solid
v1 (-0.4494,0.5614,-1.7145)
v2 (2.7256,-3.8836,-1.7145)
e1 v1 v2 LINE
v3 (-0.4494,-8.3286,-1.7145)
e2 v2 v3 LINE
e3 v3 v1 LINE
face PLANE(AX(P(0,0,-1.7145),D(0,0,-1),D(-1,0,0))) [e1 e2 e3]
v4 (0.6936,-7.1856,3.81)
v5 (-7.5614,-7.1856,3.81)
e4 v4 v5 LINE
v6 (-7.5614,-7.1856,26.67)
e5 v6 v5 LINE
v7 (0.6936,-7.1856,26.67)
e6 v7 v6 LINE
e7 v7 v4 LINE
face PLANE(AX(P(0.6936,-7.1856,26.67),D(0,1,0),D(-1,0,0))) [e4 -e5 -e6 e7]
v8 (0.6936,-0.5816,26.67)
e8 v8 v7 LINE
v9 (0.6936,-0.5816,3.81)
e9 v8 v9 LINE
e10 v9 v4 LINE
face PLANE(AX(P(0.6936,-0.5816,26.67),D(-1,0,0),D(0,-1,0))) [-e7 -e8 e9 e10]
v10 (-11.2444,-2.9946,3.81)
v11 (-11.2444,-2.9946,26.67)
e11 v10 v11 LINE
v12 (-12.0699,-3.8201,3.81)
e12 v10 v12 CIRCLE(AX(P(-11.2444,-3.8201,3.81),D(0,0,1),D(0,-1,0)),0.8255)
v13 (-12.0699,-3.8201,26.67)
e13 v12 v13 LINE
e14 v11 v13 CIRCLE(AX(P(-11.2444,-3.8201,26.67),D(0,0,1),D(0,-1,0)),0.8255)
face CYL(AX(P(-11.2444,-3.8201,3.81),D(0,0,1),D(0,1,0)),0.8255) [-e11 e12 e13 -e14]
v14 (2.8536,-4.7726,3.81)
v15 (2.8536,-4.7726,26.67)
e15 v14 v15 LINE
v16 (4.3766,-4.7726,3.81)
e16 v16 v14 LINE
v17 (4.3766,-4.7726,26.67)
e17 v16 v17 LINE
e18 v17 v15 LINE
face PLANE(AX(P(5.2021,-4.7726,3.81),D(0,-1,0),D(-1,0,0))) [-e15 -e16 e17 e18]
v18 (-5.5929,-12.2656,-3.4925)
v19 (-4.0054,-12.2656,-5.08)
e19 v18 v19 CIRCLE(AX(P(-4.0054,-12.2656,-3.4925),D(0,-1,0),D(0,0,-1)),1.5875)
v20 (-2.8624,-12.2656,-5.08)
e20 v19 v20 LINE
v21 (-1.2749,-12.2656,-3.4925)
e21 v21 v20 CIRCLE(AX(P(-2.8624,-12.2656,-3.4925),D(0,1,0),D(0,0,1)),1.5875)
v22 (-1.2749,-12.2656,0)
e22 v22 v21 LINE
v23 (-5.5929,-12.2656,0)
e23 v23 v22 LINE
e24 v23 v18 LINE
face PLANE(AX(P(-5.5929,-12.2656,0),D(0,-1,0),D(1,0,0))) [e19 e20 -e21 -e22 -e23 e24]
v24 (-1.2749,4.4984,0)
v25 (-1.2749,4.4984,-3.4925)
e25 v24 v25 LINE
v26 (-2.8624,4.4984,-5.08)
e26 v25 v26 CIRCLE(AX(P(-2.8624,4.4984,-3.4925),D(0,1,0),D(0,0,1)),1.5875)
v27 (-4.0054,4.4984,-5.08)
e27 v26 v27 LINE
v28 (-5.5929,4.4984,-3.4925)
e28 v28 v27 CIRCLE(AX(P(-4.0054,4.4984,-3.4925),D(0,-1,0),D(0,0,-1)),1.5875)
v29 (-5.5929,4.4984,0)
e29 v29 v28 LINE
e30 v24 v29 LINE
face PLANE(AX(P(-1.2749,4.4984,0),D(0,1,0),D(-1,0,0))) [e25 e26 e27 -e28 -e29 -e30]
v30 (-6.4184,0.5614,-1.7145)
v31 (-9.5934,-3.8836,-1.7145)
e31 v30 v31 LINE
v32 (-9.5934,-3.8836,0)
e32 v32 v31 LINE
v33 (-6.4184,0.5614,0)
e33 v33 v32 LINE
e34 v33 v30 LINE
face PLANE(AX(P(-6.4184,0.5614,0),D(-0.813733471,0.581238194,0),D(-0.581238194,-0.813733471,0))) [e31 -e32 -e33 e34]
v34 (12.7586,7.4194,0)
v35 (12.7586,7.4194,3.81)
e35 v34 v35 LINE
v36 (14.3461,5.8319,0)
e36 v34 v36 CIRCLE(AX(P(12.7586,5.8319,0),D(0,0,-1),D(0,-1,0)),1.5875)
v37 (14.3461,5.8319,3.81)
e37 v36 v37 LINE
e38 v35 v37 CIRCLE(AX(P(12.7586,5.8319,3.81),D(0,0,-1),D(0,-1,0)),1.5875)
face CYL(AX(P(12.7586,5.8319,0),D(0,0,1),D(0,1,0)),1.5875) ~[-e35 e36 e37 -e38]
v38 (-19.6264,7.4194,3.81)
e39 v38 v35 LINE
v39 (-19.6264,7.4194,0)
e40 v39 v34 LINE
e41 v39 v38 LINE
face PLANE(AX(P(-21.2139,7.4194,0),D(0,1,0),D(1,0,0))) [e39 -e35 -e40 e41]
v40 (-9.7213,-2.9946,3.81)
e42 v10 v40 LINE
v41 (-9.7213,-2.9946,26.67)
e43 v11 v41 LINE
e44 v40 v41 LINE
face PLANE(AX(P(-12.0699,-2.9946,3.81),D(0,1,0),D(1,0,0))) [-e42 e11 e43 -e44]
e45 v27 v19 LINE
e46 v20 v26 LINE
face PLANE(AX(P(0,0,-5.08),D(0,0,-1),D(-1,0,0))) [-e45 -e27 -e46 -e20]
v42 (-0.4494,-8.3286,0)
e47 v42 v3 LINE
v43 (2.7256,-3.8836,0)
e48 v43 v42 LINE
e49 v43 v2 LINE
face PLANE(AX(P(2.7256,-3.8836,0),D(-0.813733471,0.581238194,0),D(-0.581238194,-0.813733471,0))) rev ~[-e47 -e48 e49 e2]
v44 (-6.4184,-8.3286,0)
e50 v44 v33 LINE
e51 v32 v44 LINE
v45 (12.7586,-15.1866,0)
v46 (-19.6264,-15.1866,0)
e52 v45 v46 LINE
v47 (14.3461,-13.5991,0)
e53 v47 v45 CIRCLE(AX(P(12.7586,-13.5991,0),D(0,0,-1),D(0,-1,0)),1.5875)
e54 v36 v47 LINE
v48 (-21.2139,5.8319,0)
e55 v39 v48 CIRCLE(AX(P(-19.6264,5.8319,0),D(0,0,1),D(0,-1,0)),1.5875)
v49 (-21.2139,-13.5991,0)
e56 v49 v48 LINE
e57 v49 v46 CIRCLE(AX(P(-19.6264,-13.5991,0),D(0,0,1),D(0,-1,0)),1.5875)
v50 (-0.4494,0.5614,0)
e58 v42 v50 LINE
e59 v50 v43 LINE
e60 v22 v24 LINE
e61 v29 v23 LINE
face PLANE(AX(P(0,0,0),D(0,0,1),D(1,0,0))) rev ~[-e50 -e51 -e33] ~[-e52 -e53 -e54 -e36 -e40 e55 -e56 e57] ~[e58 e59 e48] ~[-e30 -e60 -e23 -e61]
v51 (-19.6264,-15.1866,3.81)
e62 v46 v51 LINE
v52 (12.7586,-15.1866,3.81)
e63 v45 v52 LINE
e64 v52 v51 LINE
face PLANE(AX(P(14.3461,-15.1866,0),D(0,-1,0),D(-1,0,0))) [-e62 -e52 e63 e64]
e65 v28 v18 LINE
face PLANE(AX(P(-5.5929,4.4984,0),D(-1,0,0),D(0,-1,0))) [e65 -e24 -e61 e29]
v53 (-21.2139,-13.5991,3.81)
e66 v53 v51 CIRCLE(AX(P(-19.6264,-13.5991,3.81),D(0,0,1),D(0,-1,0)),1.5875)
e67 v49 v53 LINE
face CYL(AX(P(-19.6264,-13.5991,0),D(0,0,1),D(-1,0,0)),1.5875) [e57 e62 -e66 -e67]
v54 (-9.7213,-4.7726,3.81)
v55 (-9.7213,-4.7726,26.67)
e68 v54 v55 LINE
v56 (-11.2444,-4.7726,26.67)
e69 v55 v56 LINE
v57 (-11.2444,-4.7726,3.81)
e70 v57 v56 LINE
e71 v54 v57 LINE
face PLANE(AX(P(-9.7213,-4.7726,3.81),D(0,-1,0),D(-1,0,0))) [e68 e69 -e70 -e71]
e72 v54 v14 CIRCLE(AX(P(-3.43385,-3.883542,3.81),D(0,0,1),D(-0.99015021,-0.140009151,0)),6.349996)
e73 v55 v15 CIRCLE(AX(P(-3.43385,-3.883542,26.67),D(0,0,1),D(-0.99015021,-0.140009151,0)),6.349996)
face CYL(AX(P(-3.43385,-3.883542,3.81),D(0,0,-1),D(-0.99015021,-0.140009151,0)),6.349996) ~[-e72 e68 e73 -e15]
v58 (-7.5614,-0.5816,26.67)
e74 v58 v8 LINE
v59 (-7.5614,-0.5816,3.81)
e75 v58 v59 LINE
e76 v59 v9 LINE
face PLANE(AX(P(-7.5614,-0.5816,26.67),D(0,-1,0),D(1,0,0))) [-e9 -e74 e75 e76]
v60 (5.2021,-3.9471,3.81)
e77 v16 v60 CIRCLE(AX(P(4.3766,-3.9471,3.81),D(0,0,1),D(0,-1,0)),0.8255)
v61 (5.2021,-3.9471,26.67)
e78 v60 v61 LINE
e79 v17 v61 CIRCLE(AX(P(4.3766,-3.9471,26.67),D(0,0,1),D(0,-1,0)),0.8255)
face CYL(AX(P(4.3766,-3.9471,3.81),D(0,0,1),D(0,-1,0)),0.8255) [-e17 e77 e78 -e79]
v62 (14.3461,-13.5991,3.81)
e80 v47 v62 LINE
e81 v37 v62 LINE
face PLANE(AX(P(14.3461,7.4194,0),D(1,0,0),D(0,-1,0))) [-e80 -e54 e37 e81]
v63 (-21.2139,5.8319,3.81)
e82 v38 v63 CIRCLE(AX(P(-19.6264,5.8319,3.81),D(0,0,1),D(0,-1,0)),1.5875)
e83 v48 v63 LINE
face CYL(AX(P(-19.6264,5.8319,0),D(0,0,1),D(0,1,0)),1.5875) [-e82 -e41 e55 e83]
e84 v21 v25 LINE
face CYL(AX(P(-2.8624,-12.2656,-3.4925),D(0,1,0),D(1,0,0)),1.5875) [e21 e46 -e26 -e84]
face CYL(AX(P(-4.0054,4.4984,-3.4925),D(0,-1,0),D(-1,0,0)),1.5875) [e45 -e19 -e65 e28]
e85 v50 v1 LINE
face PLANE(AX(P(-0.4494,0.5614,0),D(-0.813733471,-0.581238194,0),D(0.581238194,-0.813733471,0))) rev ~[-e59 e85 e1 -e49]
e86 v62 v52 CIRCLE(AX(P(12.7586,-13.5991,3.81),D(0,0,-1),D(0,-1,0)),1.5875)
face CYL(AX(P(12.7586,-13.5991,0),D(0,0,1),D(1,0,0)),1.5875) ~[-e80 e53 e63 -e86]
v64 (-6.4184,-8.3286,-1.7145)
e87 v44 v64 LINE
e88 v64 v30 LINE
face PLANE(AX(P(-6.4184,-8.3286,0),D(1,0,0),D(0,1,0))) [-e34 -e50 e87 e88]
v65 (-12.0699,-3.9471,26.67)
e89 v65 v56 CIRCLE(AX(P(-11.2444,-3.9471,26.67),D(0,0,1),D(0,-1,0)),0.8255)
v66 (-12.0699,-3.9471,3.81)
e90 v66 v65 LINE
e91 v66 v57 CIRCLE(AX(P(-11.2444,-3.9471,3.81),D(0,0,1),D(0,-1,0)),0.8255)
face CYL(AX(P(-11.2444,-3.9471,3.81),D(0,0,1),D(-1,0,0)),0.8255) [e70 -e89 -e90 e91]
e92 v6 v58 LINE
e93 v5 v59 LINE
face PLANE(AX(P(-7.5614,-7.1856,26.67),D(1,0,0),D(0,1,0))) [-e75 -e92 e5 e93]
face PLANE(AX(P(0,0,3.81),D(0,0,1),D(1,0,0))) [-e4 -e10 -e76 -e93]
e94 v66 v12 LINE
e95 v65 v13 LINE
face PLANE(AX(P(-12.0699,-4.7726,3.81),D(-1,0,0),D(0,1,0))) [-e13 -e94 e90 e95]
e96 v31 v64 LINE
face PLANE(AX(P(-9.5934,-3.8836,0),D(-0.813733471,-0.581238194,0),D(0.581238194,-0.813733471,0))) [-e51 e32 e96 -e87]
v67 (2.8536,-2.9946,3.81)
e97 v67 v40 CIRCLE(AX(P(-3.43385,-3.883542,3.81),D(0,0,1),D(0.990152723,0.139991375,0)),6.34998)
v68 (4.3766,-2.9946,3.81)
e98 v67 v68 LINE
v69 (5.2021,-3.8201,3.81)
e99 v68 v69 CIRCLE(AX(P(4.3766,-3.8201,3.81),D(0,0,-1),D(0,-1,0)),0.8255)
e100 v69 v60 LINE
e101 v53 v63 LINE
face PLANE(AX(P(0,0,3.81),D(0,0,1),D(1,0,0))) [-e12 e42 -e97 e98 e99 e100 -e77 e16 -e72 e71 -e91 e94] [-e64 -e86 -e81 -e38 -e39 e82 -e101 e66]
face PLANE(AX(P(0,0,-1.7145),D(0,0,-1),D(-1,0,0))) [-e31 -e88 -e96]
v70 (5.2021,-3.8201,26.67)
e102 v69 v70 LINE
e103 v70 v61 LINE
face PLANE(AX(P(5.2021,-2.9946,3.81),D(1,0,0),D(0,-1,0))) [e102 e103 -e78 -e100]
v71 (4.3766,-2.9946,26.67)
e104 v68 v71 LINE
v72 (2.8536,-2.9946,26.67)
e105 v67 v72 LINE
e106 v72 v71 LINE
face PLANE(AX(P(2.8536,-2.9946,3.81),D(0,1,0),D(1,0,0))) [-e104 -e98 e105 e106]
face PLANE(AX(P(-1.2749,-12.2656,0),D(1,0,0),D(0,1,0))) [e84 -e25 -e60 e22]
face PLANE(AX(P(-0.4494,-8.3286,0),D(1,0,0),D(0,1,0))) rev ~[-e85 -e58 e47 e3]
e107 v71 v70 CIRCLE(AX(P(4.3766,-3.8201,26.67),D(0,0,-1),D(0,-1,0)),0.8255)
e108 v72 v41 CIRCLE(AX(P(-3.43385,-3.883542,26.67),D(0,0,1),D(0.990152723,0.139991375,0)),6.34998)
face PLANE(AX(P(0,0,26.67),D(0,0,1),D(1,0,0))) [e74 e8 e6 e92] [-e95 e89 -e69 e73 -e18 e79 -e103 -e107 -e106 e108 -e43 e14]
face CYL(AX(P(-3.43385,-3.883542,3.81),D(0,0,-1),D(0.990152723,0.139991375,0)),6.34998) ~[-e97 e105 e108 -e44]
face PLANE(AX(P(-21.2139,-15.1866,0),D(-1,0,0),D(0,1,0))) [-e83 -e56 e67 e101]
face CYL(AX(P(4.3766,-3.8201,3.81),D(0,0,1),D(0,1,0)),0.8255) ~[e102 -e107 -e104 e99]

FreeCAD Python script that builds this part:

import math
import FreeCAD as App
import Part
import Sketcher

V = App.Vector
Q = App.Units.Quantity


def edges_at(feature, points):
    """Names of the edges that pass closest to the given points."""
    edges = feature.Shape.Edges
    near = lambda p: min(range(len(edges)), key=lambda i: edges[i].distToShape(Part.Vertex(*p))[0])
    return sorted({f"Edge{near(p) + 1}" for p in points})


def add_polygon(sketch, points):
    """Adds a closed chain of lines whose ends are joined by coincident constraints."""
    first, n = sketch.GeometryCount, len(points)
    for a, b in zip(points, points[1:] + points[:1]):
        sketch.addGeometry(Part.LineSegment(App.Vector(*a, 0), App.Vector(*b, 0)), False)
    for i in range(n):
        sketch.addConstraint(Sketcher.Constraint("Coincident", first + i, 2, first + (i + 1) % n, 1))

doc = App.newDocument("Part")
params = doc.addObject("Spreadsheet::Sheet", "Params")
for row, (alias, value) in enumerate([
    ("sketch1_width", "1.4 in"),
    ("sketch1_height", "0.89 in"),
    ("pad1_length", "0.15 in"),
    ("sketch2_height", "0.07 in"),
    ("sketch2_radius", "0.25 in"),
    ("pad2_length", "0.9 in"),
    ("sketch3_height", "0.26 in"),
    ("sketch3_width", "0.325 in"),
    ("pocket1_length", "0.9 in"),
    ("sketch4_width", "0.17 in"),
    ("sketch4_height", "0.66 in"),
    ("pad3_length", "0.2 in"),
    ("fillet_radius", "0.0625 in"),
    ("fillet2_radius", "0.0325 in"),
    ("sketch5_height", "0.35 in"),
    ("pad4_length", "0.0675 in"),
    ("fillet3_radius", "0.0625 in"),
], start=1):
    params.set(f"A{row}", alias)
    params.set(f"B{row}", "=" + value)
    params.setAlias(f"B{row}", alias)

body = doc.addObject("PartDesign::Body", "Body")

# Sketch on XY plane
sketch1 = doc.addObject("Sketcher::SketchObject", "Sketch")
body.addObject(sketch1)
sketch1.AttachmentSupport = (doc.XY_Plane, [""])
sketch1.MapMode = "FlatFace"
add_polygon(sketch1, [(14, 7), (-21, 7), (-21, -15), (14, -15)])  # lines 0-3
sketch1.addConstraint([
    Sketcher.Constraint("Horizontal", 0),
    Sketcher.Constraint("Vertical", 1),
    Sketcher.Constraint("Horizontal", 2),
    Sketcher.Constraint("Vertical", 3),
    Sketcher.Constraint("DistanceX", 0, 2, 0, 1, Q("1.4 in")),
    Sketcher.Constraint("DistanceY", 1, 2, 1, 1, Q("0.89 in")),
    Sketcher.Constraint("DistanceX", 0, 2, -1, 1, Q("0.8352 in")),
    Sketcher.Constraint("DistanceY", -1, 1, 0, 2, Q("0.2921 in")),
])
sketch1.setExpression("Constraints[8]", "Params.sketch1_width")
sketch1.setExpression("Constraints[9]", "Params.sketch1_height")
pad1 = doc.addObject("PartDesign::Pad", "Pad")
body.addObject(pad1)
pad1.Profile = sketch1
pad1.setExpression("Length", "Params.pad1_length")

# Sketch on XY plane
sketch2 = doc.addObject("Sketcher::SketchObject", "Sketch001")
body.addObject(sketch2)
sketch2.AttachmentSupport = (doc.XY_Plane, [""])
sketch2.MapMode = "FlatFace"
sketch2.AttachmentOffset = App.Placement(V(0, 0, 0.15 * 25.4), App.Rotation())
sketch2.addGeometry([
    Part.LineSegment(V(5.2, -4.8, 0), V(5.2, -3, 0)),  # 0
    Part.LineSegment(V(5.2, -3, 0), V(2.9, -3, 0)),  # 1
    Part.ArcOfCircle(Part.Circle(V(-3.4, -3.9, 0), V(0, 0, 1), 6.3), math.radians(8), math.radians(172)),  # 2
    Part.LineSegment(V(-9.7, -3, 0), V(-12.1, -3, 0)),  # 3
    Part.LineSegment(V(-12.1, -3, 0), V(-12.1, -4.8, 0)),  # 4
    Part.LineSegment(V(-12.1, -4.8, 0), V(-9.7, -4.8, 0)),  # 5
    Part.ArcOfCircle(Part.Circle(V(-3.4, -3.9, 0), V(0, 0, 1), 6.4), math.radians(-172), math.radians(-8)),  # 6
    Part.LineSegment(V(2.9, -4.8, 0), V(5.2, -4.8, 0)),  # 7
], False)
sketch2.addConstraint([
    Sketcher.Constraint("Coincident", 0, 2, 1, 1),
    Sketcher.Constraint("Coincident", 1, 2, 2, 1),
    Sketcher.Constraint("Coincident", 2, 2, 3, 1),
    Sketcher.Constraint("Coincident", 3, 2, 4, 1),
    Sketcher.Constraint("Coincident", 4, 2, 5, 1),
    Sketcher.Constraint("Coincident", 5, 2, 6, 1),
    Sketcher.Constraint("Coincident", 6, 2, 7, 1),
    Sketcher.Constraint("Coincident", 7, 2, 0, 1),
    Sketcher.Constraint("Vertical", 0),
    Sketcher.Constraint("Horizontal", 1),
    Sketcher.Constraint("Horizontal", 3),
    Sketcher.Constraint("Vertical", 4),
    Sketcher.Constraint("Horizontal", 5),
    Sketcher.Constraint("Horizontal", 7),
    Sketcher.Constraint("Coincident", 6, 3, 2, 3),
    Sketcher.Constraint("Equal", 2, 6),
    Sketcher.Constraint("Horizontal", 1, 2, 2, 2),
    Sketcher.Constraint("Horizontal", 5, 2, 6, 2),
    Sketcher.Constraint("Vertical", 2, 2, 5, 2),
    Sketcher.Constraint("Equal", 1, 3),
    Sketcher.Constraint("DistanceY", 0, 1, 0, 2, Q("0.07 in")),
    Sketcher.Constraint("Radius", 2, Q("0.25 in")),
    Sketcher.Constraint("DistanceX", 3, 2, 0, 2, Q("0.68 in")),
    Sketcher.Constraint("DistanceX", 2, 3, -1, 1, Q("0.1352 in")),
    Sketcher.Constraint("DistanceY", 2, 3, -1, 1, Q("0.1529 in")),
])
sketch2.setExpression("Constraints[20]", "Params.sketch2_height")
sketch2.setExpression("Constraints[21]", "Params.sketch2_radius")
pad2 = doc.addObject("PartDesign::Pad", "Pad001")
body.addObject(pad2)
pad2.Profile = sketch2
pad2.setExpression("Length", "Params.pad2_length")

# Sketch on XY plane
sketch3 = doc.addObject("Sketcher::SketchObject", "Sketch002")
body.addObject(sketch3)
sketch3.AttachmentSupport = (doc.XY_Plane, [""])
sketch3.MapMode = "FlatFace"
sketch3.AttachmentOffset = App.Placement(V(0, 0, 1.05 * 25.4), App.Rotation())
add_polygon(sketch3, [(1, -1), (-8, -1), (-8, -7), (1, -7)])  # lines 0-3
sketch3.addConstraint([
    Sketcher.Constraint("Horizontal", 0),
    Sketcher.Constraint("Vertical", 1),
    Sketcher.Constraint("Horizontal", 2),
    Sketcher.Constraint("Vertical", 3),
    Sketcher.Constraint("DistanceY", 1, 2, 1, 1, Q("0.26 in")),
    Sketcher.Constraint("DistanceX", 0, 2, 0, 1, Q("0.325 in")),
    Sketcher.Constraint("DistanceX", 0, 2, -1, 1, Q("0.2977 in")),
    Sketcher.Constraint("DistanceY", 0, 2, -1, 1, Q("0.0229 in")),
])
sketch3.setExpression("Constraints[8]", "Params.sketch3_height")
sketch3.setExpression("Constraints[9]", "Params.sketch3_width")
pocket1 = doc.addObject("PartDesign::Pocket", "Pocket")
body.addObject(pocket1)
pocket1.Profile = sketch3
pocket1.setExpression("Length", "Params.pocket1_length")

# Sketch on XY plane
sketch4 = doc.addObject("Sketcher::SketchObject", "Sketch003")
body.addObject(sketch4)
sketch4.AttachmentSupport = (doc.XY_Plane, [""])
sketch4.MapMode = "FlatFace"
add_polygon(sketch4, [(-5.6, 4.5), (-1.3, 4.5), (-1.3, -12.3), (-5.6, -12.3)])  # lines 0-3
sketch4.addConstraint([
    Sketcher.Constraint("Horizontal", 0),
    Sketcher.Constraint("Vertical", 1),
    Sketcher.Constraint("Horizontal", 2),
    Sketcher.Constraint("Vertical", 3),
    Sketcher.Constraint("DistanceX", 0, 1, 0, 2, Q("0.17 in")),
    Sketcher.Constraint("DistanceY", 1, 2, 1, 1, Q("0.66 in")),
    Sketcher.Constraint("DistanceX", 0, 2, -1, 1, Q("0.0502 in")),
    Sketcher.Constraint("DistanceY", -1, 1, 0, 2, Q("0.1771 in")),
])
sketch4.setExpression("Constraints[8]", "Params.sketch4_width")
sketch4.setExpression("Constraints[9]", "Params.sketch4_height")
pad3 = doc.addObject("PartDesign::Pad", "Pad002")
body.addObject(pad3)
pad3.Profile = sketch4
pad3.setExpression("Length", "Params.pad3_length")
pad3.Reversed = True
doc.recompute()

fillet = doc.addObject("PartDesign::Fillet", "Fillet")
body.addObject(fillet)
fillet.Base = (pad3, edges_at(pad3, [(-5.593, -3.884, -5.08), (-1.275, -3.884, -5.08)]))
fillet.setExpression("Radius", "Params.fillet_radius")
doc.recompute()

fillet2 = doc.addObject("PartDesign::Fillet", "Fillet001")
body.addObject(fillet2)
fillet2.Base = (fillet, edges_at(fillet, [
    (-12.07, -4.773, 15.24),
    (-12.07, -2.995, 15.24),
    (5.202, -4.773, 15.24),
    (5.202, -2.995, 15.24),
]))
fillet2.setExpression("Radius", "Params.fillet2_radius")

# Sketch on XY plane
sketch5 = doc.addObject("Sketcher::SketchObject", "Sketch004")
body.addObject(sketch5)
sketch5.AttachmentSupport = (doc.XY_Plane, [""])
sketch5.MapMode = "FlatFace"
add_polygon(sketch5, [(-6, 1), (-6, -8), (-10, -4)])  # lines 0-2
add_polygon(sketch5, [(3, -4), (0, -8), (0, 1)])  # lines 3-5
sketch5.addConstraint([
    Sketcher.Constraint("Vertical", 0),
    Sketcher.Constraint("Vertical", 4),
    Sketcher.Constraint("Parallel", 2, 3),
    Sketcher.Constraint("Parallel", 1, 5),
    Sketcher.Constraint("Horizontal", 0, 2, 3, 2),
    Sketcher.Constraint("Horizontal", 2, 2, 4, 2),
    Sketcher.Constraint("Horizontal", 1, 2, 5, 2),
    Sketcher.Constraint("DistanceY", 0, 2, 0, 1, Q("0.35 in")),
    Sketcher.Constraint("DistanceX", 1, 2, 0, 2, Q("0.125 in")),
    Sketcher.Constraint("DistanceX", 1, 2, 3, 2, Q("0.36 in")),
    Sketcher.Constraint("DistanceX", 0, 2, -1, 1, Q("0.2527 in")),
    Sketcher.Constraint("DistanceY", 0, 2, -1, 1, Q("0.3279 in")),
])
sketch5.setExpression("Constraints[13]", "Params.sketch5_height")
pad4 = doc.addObject("PartDesign::Pad", "Pad003")
body.addObject(pad4)
pad4.Profile = sketch5
pad4.setExpression("Length", "Params.pad4_length")
pad4.Reversed = True
doc.recompute()

fillet3 = doc.addObject("PartDesign::Fillet", "Fillet002")
body.addObject(fillet3)
fillet3.Base = (pad4, edges_at(pad4, [
    (14.346, 7.419, 1.905),
    (14.346, -15.187, 1.905),
    (-21.214, -15.187, 1.905),
    (-21.214, 7.419, 1.905),
]))
fillet3.setExpression("Radius", "Params.fillet3_radius")

doc.recompute()
